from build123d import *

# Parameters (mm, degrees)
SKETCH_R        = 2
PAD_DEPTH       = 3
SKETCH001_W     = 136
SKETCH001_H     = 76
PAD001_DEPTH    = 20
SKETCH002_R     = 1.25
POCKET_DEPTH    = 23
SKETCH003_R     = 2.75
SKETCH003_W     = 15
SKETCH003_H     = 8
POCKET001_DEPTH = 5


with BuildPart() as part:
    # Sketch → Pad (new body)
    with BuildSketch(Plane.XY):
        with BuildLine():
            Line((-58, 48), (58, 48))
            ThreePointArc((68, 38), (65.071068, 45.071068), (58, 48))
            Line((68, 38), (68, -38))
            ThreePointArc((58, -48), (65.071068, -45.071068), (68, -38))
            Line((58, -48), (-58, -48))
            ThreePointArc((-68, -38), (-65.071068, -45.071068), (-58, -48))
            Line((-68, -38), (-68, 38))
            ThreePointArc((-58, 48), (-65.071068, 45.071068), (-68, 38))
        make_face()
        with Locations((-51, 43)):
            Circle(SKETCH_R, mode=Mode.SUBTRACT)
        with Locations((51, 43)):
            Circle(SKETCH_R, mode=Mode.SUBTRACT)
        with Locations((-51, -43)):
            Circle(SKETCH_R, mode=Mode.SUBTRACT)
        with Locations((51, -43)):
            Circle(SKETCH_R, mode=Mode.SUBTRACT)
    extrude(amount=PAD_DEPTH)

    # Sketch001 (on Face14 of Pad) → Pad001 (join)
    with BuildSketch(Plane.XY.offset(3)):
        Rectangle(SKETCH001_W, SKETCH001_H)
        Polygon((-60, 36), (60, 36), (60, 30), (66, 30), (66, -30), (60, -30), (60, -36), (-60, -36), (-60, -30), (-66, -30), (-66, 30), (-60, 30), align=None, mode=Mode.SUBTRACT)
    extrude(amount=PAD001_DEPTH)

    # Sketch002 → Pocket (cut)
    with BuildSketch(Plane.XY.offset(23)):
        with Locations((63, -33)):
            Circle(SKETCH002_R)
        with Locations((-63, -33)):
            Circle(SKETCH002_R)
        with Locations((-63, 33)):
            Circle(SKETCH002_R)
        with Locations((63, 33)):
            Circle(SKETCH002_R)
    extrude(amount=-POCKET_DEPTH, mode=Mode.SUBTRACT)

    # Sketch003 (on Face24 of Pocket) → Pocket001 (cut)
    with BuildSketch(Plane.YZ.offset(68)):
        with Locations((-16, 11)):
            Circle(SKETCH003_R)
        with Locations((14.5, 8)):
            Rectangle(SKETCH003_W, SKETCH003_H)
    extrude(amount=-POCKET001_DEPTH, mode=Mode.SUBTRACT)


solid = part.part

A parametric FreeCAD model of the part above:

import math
import FreeCAD as App
import Part
import Sketcher

V = App.Vector


def add_polygon(sketch, points):
    """Adds a closed chain of lines whose ends are joined by coincident constraints."""
    first, n = sketch.GeometryCount, len(points)
    for a, b in zip(points, points[1:] + points[:1]):
        sketch.addGeometry(Part.LineSegment(App.Vector(*a, 0), App.Vector(*b, 0)), False)
    for i in range(n):
        sketch.addConstraint(Sketcher.Constraint("Coincident", first + i, 2, first + (i + 1) % n, 1))

doc = App.newDocument("Part")
params = doc.addObject("Spreadsheet::Sheet", "Params")
for row, (alias, value) in enumerate([
    ("sketch1_diameter", "4 mm"),
    ("sketch1_radius", "9.999999 mm"),
    ("sketch1_width", "116 mm"),
    ("sketch1_height", "76 mm"),
    ("pad1_length", "3 mm"),
    ("sketch2_width", "136 mm"),
    ("sketch2_width2", "120 mm"),
    ("sketch2_width3", "6 mm"),
    ("sketch2_height", "76 mm"),
    ("sketch2_height2", "60 mm"),
    ("pad2_length", "20 mm"),
    ("sketch3_diameter", "2.5 mm"),
    ("pocket1_length", "23 mm"),
    ("sketch4_diameter", "5.5 mm"),
    ("sketch4_width", "15 mm"),
    ("sketch4_height", "8 mm"),
    ("pocket2_length", "5 mm"),
], start=1):
    params.set(f"A{row}", alias)
    params.set(f"B{row}", "=" + value)
    params.setAlias(f"B{row}", alias)

body = doc.addObject("PartDesign::Body", "Body")

sketch1 = doc.addObject("Sketcher::SketchObject", "Sketch")
body.addObject(sketch1)
sketch1.AttachmentSupport = (doc.XY_Plane, [""])
sketch1.MapMode = "FlatFace"
sketch1.addGeometry([
    Part.LineSegment(V(58, 48, 0), V(-58, 48, 0)),
    Part.ArcOfCircle(Part.Circle(V(-58.000001, 38.000001, 0), V(0, 0, 1), 9.999999), math.radians(89.999996), math.radians(180.000004)),
    Part.LineSegment(V(-68, 38, 0), V(-68, -38, 0)),
    Part.ArcOfCircle(Part.Circle(V(-58.000001, -38.000001, 0), V(0, 0, 1), 9.999999), math.radians(179.999996), math.radians(270.000004)),
    Part.LineSegment(V(-58, -48, 0), V(58, -48, 0)),
    Part.ArcOfCircle(Part.Circle(V(58.000001, -38.000001, 0), V(0, 0, 1), 9.999999), math.radians(-90.000004), math.radians(0.000004)),
    Part.LineSegment(V(68, -38, 0), V(68, 38, 0)),
    Part.ArcOfCircle(Part.Circle(V(58.000001, 38.000001, 0), V(0, 0, 1), 9.999999), math.radians(-0.000004), math.radians(90.000004)),
    Part.Circle(V(51, -43, 0), V(0, 0, 1), 2),
    Part.Circle(V(-51, -43, 0), V(0, 0, 1), 2),
    Part.Circle(V(51, 43, 0), V(0, 0, 1), 2),
    Part.Circle(V(-51, 43, 0), V(0, 0, 1), 2),
], False)
sketch1.addConstraint([
    Sketcher.Constraint("Tangent", 0, 2, 1, 1),
    Sketcher.Constraint("Tangent", 1, 2, 2, 1),
    Sketcher.Constraint("Tangent", 2, 2, 3, 1),
    Sketcher.Constraint("Tangent", 3, 2, 4, 1),
    Sketcher.Constraint("Tangent", 4, 2, 5, 1),
    Sketcher.Constraint("Tangent", 5, 2, 6, 1),
    Sketcher.Constraint("Tangent", 6, 2, 7, 1),
    Sketcher.Constraint("Tangent", 7, 2, 0, 1),
    Sketcher.Constraint("Horizontal", 0),
    Sketcher.Constraint("Vertical", 2),
    Sketcher.Constraint("Horizontal", 4),
    Sketcher.Constraint("Vertical", 6),
    Sketcher.Constraint("Equal", 1, 3),
    Sketcher.Constraint("Equal", 3, 5),
    Sketcher.Constraint("Equal", 5, 7),
    Sketcher.Constraint("Equal", 8, 9),
    Sketcher.Constraint("Equal", 9, 10),
    Sketcher.Constraint("Equal", 10, 11),
    Sketcher.Constraint("Symmetric", 1, 3, 5, 3, -1, 1),
    Sketcher.Constraint("Symmetric", 9, 3, 10, 3, -1, 1),
    Sketcher.Constraint("Symmetric", 8, 3, 11, 3, -1, 1),
    Sketcher.Constraint("Symmetric", 8, 3, 9, 3, -2),
    Sketcher.Constraint("Diameter", 8, 4.0),
    Sketcher.Constraint("Radius", 1, 9.999999),
    Sketcher.Constraint("DistanceX", 0, 2, 0, 1, 116.0),
    Sketcher.Constraint("DistanceY", 2, 2, 2, 1, 76.0),
    Sketcher.Constraint("DistanceX", -1, 1, 8, 3, 51.0),
    Sketcher.Constraint("DistanceY", 8, 3, -1, 1, 43.0),
])
sketch1.setExpression("Constraints[22]", "Params.sketch1_diameter")
sketch1.setExpression("Constraints[23]", "Params.sketch1_radius")
sketch1.setExpression("Constraints[24]", "Params.sketch1_width")
sketch1.setExpression("Constraints[25]", "Params.sketch1_height")
pad1 = doc.addObject("PartDesign::Pad", "Pad")
body.addObject(pad1)
pad1.Profile = sketch1
pad1.setExpression("Length", "Params.pad1_length")

sketch2 = doc.addObject("Sketcher::SketchObject", "Sketch001")
body.addObject(sketch2)
sketch2.AttachmentSupport = (doc.XY_Plane, [""])
sketch2.MapMode = "FlatFace"
sketch2.AttachmentOffset = App.Placement(V(0, 0, 3), App.Rotation())
add_polygon(sketch2, [(-68, 38), (-68, -38), (68, -38), (68, 38)])
add_polygon(sketch2, [(-60, 30), (-60, 36), (60, 36), (60, 30), (66, 30), (66, -30), (60, -30), (60, -36), (-60, -36), (-60, -30), (-66, -30), (-66, 30)])
sketch2.addConstraint([
    Sketcher.Constraint("Vertical", 0),
    Sketcher.Constraint("Horizontal", 1),
    Sketcher.Constraint("Vertical", 2),
    Sketcher.Constraint("Horizontal", 3),
    Sketcher.Constraint("Vertical", 4),
    Sketcher.Constraint("Horizontal", 5),
    Sketcher.Constraint("Vertical", 6),
    Sketcher.Constraint("Horizontal", 7),
    Sketcher.Constraint("Vertical", 8),
    Sketcher.Constraint("Horizontal", 9),
    Sketcher.Constraint("Vertical", 10),
    Sketcher.Constraint("Horizontal", 11),
    Sketcher.Constraint("Vertical", 12),
    Sketcher.Constraint("Horizontal", 13),
    Sketcher.Constraint("Vertical", 14),
    Sketcher.Constraint("Horizontal", 15),
    Sketcher.Constraint("Symmetric", 0, 2, 2, 2, -1, 1),
    Sketcher.Constraint("Symmetric", 4, 2, 10, 2, -1, 1),
    Sketcher.Constraint("Symmetric", 6, 2, 12, 2, -1, 1),
    Sketcher.Constraint("Symmetric", 8, 2, 14, 2, -1, 1),
    Sketcher.Constraint("Symmetric", 9, 2, 12, 2, -2),
    Sketcher.Constraint("Equal", 15, 4),
    Sketcher.Constraint("DistanceX", 1, 1, 1, 2, 136.0),
    Sketcher.Constraint("DistanceX", 5, 1, 5, 2, 120.0),
    Sketcher.Constraint("DistanceX", 7, 1, 7, 2, 6.0),
    Sketcher.Constraint("DistanceY", 0, 2, 0, 1, 76.0),
    Sketcher.Constraint("DistanceY", 8, 2, 8, 1, 60.0),
])
sketch2.setExpression("Constraints[38]", "Params.sketch2_width")
sketch2.setExpression("Constraints[39]", "Params.sketch2_width2")
sketch2.setExpression("Constraints[40]", "Params.sketch2_width3")
sketch2.setExpression("Constraints[41]", "Params.sketch2_height")
sketch2.setExpression("Constraints[42]", "Params.sketch2_height2")
pad2 = doc.addObject("PartDesign::Pad", "Pad001")
body.addObject(pad2)
pad2.Profile = sketch2
pad2.setExpression("Length", "Params.pad2_length")

sketch3 = doc.addObject("Sketcher::SketchObject", "Sketch002")
body.addObject(sketch3)
sketch3.AttachmentSupport = (doc.XY_Plane, [""])
sketch3.MapMode = "FlatFace"
sketch3.AttachmentOffset = App.Placement(V(0, 0, 23), App.Rotation())
sketch3.addGeometry([
    Part.Circle(V(63, -33, 0), V(0, 0, 1), 1.25),
    Part.Circle(V(-63, -33, 0), V(0, 0, 1), 1.25),
    Part.Circle(V(-63, 33, 0), V(0, 0, 1), 1.25),
    Part.Circle(V(63, 33, 0), V(0, 0, 1), 1.25),
], False)
sketch3.addConstraint([
    Sketcher.Constraint("Equal", 0, 1),
    Sketcher.Constraint("Equal", 1, 2),
    Sketcher.Constraint("Equal", 2, 3),
    Sketcher.Constraint("Symmetric", 0, 3, 2, 3, -1, 1),
    Sketcher.Constraint("Symmetric", 1, 3, 3, 3, -1, 1),
    Sketcher.Constraint("Symmetric", 0, 3, 1, 3, -2),
    Sketcher.Constraint("Diameter", 0, 2.5),
    Sketcher.Constraint("DistanceX", -1, 1, 0, 3, 63.0),
    Sketcher.Constraint("DistanceY", 0, 3, -1, 1, 33.0),
])
sketch3.setExpression("Constraints[6]", "Params.sketch3_diameter")
pocket1 = doc.addObject("PartDesign::Pocket", "Pocket")
body.addObject(pocket1)
pocket1.Profile = sketch3
pocket1.setExpression("Length", "Params.pocket1_length")

sketch4 = doc.addObject("Sketcher::SketchObject", "Sketch003")
body.addObject(sketch4)
sketch4.AttachmentSupport = (doc.YZ_Plane, [""])
sketch4.MapMode = "FlatFace"
sketch4.AttachmentOffset = App.Placement(V(0, 0, 68), App.Rotation())
sketch4.addGeometry(Part.Circle(V(-16, 11, 0), V(0, 0, 1), 2.75), False)
add_polygon(sketch4, [(7, 12), (7, 4), (22, 4), (22, 12)])
sketch4.addConstraint([
    Sketcher.Constraint("Vertical", 1),
    Sketcher.Constraint("Horizontal", 2),
    Sketcher.Constraint("Vertical", 3),
    Sketcher.Constraint("Horizontal", 4),
    Sketcher.Constraint("Diameter", 0, 5.5),
    Sketcher.Constraint("DistanceX", 2, 1, 2, 2, 15.0),
    Sketcher.Constraint("DistanceY", 1, 2, 1, 1, 8.0),
    Sketcher.Constraint("DistanceX", 0, 3, -1, 1, 16.0),
    Sketcher.Constraint("DistanceY", -1, 1, 0, 3, 11.0),
    Sketcher.Constraint("DistanceX", -1, 1, 1, 2, 7.0),
    Sketcher.Constraint("DistanceY", -1, 1, 1, 2, 4.0),
])
sketch4.setExpression("Constraints[8]", "Params.sketch4_diameter")
sketch4.setExpression("Constraints[9]", "Params.sketch4_width")
sketch4.setExpression("Constraints[10]", "Params.sketch4_height")
pocket2 = doc.addObject("PartDesign::Pocket", "Pocket001")
body.addObject(pocket2)
pocket2.Profile = sketch4
pocket2.setExpression("Length", "Params.pocket2_length")

doc.recompute()
